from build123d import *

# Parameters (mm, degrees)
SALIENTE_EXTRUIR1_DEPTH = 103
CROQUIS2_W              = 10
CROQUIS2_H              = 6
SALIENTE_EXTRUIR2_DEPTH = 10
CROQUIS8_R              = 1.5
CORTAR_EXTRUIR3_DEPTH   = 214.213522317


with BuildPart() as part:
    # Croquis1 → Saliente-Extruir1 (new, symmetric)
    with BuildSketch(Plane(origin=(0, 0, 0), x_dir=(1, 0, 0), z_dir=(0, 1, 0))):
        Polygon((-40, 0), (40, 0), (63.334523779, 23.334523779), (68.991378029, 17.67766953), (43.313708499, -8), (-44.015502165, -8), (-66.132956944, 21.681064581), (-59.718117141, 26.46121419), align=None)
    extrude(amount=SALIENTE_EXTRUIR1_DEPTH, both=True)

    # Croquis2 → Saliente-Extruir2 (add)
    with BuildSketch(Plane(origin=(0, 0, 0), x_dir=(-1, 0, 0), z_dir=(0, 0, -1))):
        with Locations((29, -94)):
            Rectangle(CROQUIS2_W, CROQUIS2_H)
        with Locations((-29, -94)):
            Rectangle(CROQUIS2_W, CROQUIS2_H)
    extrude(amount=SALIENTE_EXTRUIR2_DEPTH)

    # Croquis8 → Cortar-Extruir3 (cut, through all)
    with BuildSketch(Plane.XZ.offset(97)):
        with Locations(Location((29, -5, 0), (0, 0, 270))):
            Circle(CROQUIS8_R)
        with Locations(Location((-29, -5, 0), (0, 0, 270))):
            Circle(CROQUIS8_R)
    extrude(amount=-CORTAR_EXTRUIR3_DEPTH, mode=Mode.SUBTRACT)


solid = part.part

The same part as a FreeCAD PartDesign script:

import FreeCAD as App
import Part
import Sketcher

V = App.Vector
Q = App.Units.Quantity


def add_polygon(sketch, points):
    """Adds a closed chain of lines whose ends are joined by coincident constraints."""
    first, n = sketch.GeometryCount, len(points)
    for a, b in zip(points, points[1:] + points[:1]):
        sketch.addGeometry(Part.LineSegment(App.Vector(*a, 0), App.Vector(*b, 0)), False)
    for i in range(n):
        sketch.addConstraint(Sketcher.Constraint("Coincident", first + i, 2, first + (i + 1) % n, 1))

doc = App.newDocument("Part")
params = doc.addObject("Spreadsheet::Sheet", "Params")
for row, (alias, value) in enumerate([
    ("sketch1_width", "80 mm"),
    ("sketch1_length", "33 mm"),
    ("sketch1_length2", "8 mm"),
    ("pad1_length", "206 mm"),
    ("sketch2_width", "10 mm"),
    ("sketch2_height", "6 mm"),
    ("pad2_length", "10 mm"),
    ("sketch3_diameter", "3 mm"),
], start=1):
    params.set(f"A{row}", alias)
    params.set(f"B{row}", "=" + value)
    params.setAlias(f"B{row}", alias)

body = doc.addObject("PartDesign::Body", "Body")

# Sketch on XZ plane
sketch1 = body.newObject("Sketcher::SketchObject", "Sketch")
sketch1.AttachmentSupport = (doc.getObject("XZ_Plane"), [""])
sketch1.MapMode = "FlatFace"
add_polygon(sketch1, [(40, 0), (-40, 0), (-59.718117, -26.461214), (-66.132957, -21.681065), (-44.015502, 8), (43.313708, 8), (68.991378, -17.67767), (63.334524, -23.334524)])  # lines 0-7
sketch1.addConstraint([
    Sketcher.Constraint("Horizontal", 0),
    Sketcher.Constraint("Horizontal", 4),
    Sketcher.Constraint("Symmetric", 0, 2, 7, 2, -1, 1),
    Sketcher.Constraint("Perpendicular", 1, 2),
    Sketcher.Constraint("Perpendicular", 2, 3),
    Sketcher.Constraint("Perpendicular", 5, 6),
    Sketcher.Constraint("Perpendicular", 6, 7),
    Sketcher.Constraint("Equal", 2, 6),
    Sketcher.Constraint("Equal", 1, 7),
    Sketcher.Constraint("DistanceX", 0, 2, 0, 1, Q("80 mm")),
    Sketcher.Constraint("Angle", 5, Q("-45 deg")),
    Sketcher.Constraint("Distance", 1, Q("33 mm")),
    Sketcher.Constraint("Distance", 2, Q("8 mm")),
    Sketcher.Constraint("DistanceY", -1, 1, 3, 2, Q("8 mm")),
    Sketcher.Constraint("DistanceX", 4, 1, 4, 2, Q("87.329211 mm")),
])
sketch1.setExpression("Constraints[17]", "Params.sketch1_width")
sketch1.setExpression("Constraints[19]", "Params.sketch1_length")
sketch1.setExpression("Constraints[20]", "Params.sketch1_length2")
pad1 = body.newObject("PartDesign::Pad", "Pad")
pad1.Profile = sketch1
pad1.setExpression("Length", "Params.pad1_length")
pad1.Midplane = True

# Sketch on XY plane
sketch2 = body.newObject("Sketcher::SketchObject", "Sketch001")
sketch2.AttachmentSupport = (doc.getObject("XY_Plane"), [""])
sketch2.MapMode = "FlatFace"
add_polygon(sketch2, [(-24, -91), (-24, -97), (-34, -97), (-34, -91)])  # lines 0-3
add_polygon(sketch2, [(34, -91), (34, -97), (24, -97), (24, -91)])  # lines 4-7
sketch2.addConstraint([
    Sketcher.Constraint("Vertical", 0),
    Sketcher.Constraint("Horizontal", 1),
    Sketcher.Constraint("Vertical", 2),
    Sketcher.Constraint("Horizontal", 3),
    Sketcher.Constraint("Vertical", 4),
    Sketcher.Constraint("Horizontal", 5),
    Sketcher.Constraint("Vertical", 6),
    Sketcher.Constraint("Horizontal", 7),
    Sketcher.Constraint("Symmetric", 1, 2, 4, 2, -2),
    Sketcher.Constraint("Symmetric", 3, 2, 6, 2, -2),
    Sketcher.Constraint("DistanceX", 1, 2, 1, 1, Q("10 mm")),
    Sketcher.Constraint("DistanceY", 0, 2, 0, 1, Q("6 mm")),
    Sketcher.Constraint("DistanceX", 0, 2, -1, 1, Q("24 mm")),
    Sketcher.Constraint("DistanceY", 0, 2, -1, 1, Q("97 mm")),
])
sketch2.setExpression("Constraints[18]", "Params.sketch2_width")
sketch2.setExpression("Constraints[19]", "Params.sketch2_height")
pad2 = body.newObject("PartDesign::Pad", "Pad001")
pad2.Profile = sketch2
pad2.setExpression("Length", "Params.pad2_length")
pad2.Reversed = True

# Sketch on XZ plane
sketch3 = body.newObject("Sketcher::SketchObject", "Sketch002")
sketch3.AttachmentSupport = (doc.getObject("XZ_Plane"), [""])
sketch3.MapMode = "FlatFace"
sketch3.AttachmentOffset = App.Placement(V(0, 0, 97), App.Rotation())
sketch3.addGeometry([
    Part.Circle(V(29, -5, 0), V(0, 0, 1), 1.5),
    Part.Circle(V(-29, -5, 0), V(0, 0, 1), 1.5),
], False)
sketch3.addConstraint([
    Sketcher.Constraint("Equal", 0, 1),
    Sketcher.Constraint("Symmetric", 0, 3, 1, 3, -2),
    Sketcher.Constraint("Diameter", 0, Q("3 mm")),
    Sketcher.Constraint("DistanceX", -1, 1, 0, 3, Q("29 mm")),
    Sketcher.Constraint("DistanceY", 0, 3, -1, 1, Q("5 mm")),
])
sketch3.setExpression("Constraints[2]", "Params.sketch3_diameter")
pocket1 = body.newObject("PartDesign::Pocket", "Pocket")
pocket1.Profile = sketch3
pocket1.Type = "ThroughAll"

doc.recompute()
